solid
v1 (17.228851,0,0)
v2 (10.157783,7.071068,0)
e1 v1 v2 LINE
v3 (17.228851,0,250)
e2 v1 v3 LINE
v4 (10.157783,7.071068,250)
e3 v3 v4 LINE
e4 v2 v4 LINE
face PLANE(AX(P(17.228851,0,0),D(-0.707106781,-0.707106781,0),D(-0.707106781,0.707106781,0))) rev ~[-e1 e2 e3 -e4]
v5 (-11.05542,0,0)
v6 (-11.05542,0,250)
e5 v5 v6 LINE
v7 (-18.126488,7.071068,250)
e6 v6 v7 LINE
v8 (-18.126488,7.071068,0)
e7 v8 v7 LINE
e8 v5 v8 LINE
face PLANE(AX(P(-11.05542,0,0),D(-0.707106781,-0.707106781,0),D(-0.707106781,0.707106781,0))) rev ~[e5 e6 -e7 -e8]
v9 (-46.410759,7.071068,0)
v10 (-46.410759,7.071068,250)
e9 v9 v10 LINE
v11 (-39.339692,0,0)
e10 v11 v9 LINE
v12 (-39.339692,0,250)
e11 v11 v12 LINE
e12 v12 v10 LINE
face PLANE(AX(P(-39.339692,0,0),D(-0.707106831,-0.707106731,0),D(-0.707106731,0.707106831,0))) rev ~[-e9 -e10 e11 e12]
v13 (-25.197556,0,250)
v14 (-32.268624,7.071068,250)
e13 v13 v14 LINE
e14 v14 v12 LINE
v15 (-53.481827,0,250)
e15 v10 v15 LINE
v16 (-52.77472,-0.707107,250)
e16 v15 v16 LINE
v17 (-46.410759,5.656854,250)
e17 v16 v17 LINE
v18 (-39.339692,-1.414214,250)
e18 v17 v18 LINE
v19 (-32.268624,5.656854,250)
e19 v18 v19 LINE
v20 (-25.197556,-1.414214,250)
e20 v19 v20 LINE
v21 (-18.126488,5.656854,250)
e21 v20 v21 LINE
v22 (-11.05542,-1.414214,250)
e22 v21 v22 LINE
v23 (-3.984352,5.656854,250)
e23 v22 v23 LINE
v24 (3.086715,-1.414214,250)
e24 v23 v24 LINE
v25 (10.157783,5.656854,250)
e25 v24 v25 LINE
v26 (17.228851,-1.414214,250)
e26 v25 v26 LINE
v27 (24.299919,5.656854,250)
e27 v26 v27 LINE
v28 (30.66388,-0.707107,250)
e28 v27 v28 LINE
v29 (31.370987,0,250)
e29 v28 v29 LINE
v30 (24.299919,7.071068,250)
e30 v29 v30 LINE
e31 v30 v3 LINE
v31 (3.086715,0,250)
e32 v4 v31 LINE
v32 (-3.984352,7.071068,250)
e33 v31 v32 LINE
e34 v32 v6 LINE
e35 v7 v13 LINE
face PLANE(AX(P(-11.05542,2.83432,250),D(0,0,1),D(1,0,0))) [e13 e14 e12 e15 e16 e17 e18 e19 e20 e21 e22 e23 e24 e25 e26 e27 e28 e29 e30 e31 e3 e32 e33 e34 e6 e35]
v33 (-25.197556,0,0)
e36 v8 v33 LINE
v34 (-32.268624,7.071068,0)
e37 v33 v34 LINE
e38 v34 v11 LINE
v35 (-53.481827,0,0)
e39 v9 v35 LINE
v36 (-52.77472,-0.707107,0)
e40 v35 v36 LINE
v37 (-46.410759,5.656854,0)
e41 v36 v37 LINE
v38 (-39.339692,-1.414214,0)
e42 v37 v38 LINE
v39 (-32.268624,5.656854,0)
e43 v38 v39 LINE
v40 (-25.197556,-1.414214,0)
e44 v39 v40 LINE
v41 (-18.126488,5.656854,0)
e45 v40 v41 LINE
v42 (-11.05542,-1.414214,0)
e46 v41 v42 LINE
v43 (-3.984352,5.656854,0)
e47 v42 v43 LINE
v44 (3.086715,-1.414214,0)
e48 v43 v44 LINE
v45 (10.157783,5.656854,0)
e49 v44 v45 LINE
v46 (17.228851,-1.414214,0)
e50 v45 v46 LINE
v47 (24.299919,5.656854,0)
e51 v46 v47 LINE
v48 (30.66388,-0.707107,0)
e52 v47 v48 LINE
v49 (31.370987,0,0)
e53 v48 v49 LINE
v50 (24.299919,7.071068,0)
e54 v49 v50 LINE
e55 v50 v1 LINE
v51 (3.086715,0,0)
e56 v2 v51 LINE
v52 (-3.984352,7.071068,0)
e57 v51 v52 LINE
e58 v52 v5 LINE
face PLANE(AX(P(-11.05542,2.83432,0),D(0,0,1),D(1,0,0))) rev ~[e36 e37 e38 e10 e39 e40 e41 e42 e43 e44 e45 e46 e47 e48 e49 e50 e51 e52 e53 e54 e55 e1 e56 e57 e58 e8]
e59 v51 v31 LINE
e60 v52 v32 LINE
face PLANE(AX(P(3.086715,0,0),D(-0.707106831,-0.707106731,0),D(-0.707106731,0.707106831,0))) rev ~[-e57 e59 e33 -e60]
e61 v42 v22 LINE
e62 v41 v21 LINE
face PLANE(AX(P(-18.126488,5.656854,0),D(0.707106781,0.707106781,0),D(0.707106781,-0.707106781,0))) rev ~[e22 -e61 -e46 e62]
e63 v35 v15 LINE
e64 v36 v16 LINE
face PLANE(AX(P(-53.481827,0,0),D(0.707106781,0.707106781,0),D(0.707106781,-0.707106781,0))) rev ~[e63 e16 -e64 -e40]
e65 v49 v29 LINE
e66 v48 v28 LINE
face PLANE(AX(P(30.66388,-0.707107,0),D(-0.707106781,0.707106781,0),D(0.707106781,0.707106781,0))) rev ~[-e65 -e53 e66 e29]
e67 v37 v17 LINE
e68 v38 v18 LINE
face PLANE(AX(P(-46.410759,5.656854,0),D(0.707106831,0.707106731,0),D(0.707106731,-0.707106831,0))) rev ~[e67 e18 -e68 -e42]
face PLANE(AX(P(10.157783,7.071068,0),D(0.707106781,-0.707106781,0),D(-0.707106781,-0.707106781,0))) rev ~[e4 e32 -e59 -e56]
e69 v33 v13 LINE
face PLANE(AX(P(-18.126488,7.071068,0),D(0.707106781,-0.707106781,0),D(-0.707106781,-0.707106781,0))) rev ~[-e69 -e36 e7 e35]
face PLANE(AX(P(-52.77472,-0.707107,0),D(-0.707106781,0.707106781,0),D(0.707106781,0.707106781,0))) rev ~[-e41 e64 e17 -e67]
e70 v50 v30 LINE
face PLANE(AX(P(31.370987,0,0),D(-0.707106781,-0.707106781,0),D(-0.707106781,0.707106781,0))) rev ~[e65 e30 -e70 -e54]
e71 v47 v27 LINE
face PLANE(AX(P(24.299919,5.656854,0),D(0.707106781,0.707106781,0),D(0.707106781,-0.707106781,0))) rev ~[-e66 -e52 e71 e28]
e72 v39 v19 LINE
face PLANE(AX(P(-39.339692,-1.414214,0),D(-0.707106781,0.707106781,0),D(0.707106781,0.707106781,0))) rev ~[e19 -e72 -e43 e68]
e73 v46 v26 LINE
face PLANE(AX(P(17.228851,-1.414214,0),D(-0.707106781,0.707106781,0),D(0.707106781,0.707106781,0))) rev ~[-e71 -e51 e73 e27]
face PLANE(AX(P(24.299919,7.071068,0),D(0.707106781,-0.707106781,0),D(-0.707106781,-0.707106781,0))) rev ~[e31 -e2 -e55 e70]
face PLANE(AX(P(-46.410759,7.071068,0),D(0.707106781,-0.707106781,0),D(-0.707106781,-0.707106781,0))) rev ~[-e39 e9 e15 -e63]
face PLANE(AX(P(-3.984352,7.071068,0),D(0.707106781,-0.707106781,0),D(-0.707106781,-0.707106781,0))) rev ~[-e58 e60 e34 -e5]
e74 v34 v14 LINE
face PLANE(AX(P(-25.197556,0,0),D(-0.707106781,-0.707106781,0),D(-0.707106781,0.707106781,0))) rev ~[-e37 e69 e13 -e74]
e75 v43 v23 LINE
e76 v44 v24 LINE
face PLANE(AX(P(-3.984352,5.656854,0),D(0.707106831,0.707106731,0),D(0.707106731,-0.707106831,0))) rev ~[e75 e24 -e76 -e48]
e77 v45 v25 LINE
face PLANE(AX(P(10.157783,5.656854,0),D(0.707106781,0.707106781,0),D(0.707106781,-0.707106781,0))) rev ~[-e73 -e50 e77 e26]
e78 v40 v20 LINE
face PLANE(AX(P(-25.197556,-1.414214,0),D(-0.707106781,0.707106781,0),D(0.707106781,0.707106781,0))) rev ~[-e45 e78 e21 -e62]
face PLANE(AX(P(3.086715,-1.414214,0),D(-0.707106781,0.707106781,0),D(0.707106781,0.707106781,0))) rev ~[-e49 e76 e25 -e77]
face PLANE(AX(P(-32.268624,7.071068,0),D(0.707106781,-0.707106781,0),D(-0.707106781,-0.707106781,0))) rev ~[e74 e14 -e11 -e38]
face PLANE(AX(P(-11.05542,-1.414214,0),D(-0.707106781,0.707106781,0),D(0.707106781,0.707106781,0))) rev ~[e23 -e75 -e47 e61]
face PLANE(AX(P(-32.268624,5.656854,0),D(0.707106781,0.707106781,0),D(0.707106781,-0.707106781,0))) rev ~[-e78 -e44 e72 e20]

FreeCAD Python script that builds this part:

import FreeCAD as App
import Part
import Sketcher
from FreeCAD import Vector

doc = App.newDocument("Part")
body = doc.addObject("PartDesign::Body", "Body")

sketch1 = doc.addObject("Sketcher::SketchObject", "Sketch")
body.addObject(sketch1)
sketch1.AttachmentSupport = (doc.XY_Plane, [""])
sketch1.MapMode = "FlatFace"
sketch1.addGeometry(Part.LineSegment(Vector(-46.4, 7.1, 0), Vector(-53.5, 0, 0)), False)
sketch1.addGeometry(Part.LineSegment(Vector(-53.5, 0, 0), Vector(-52.8, -0.7, 0)), False)
sketch1.addGeometry(Part.LineSegment(Vector(-52.8, -0.7, 0), Vector(-46.4, 5.7, 0)), False)
sketch1.addGeometry(Part.LineSegment(Vector(-46.4, 5.7, 0), Vector(-39.3, -1.4, 0)), False)
sketch1.addGeometry(Part.LineSegment(Vector(-39.3, -1.4, 0), Vector(-32.3, 5.7, 0)), False)
sketch1.addGeometry(Part.LineSegment(Vector(-32.3, 5.7, 0), Vector(-25.2, -1.4, 0)), False)
sketch1.addGeometry(Part.LineSegment(Vector(-25.2, -1.4, 0), Vector(-18.1, 5.7, 0)), False)
sketch1.addGeometry(Part.LineSegment(Vector(-18.1, 5.7, 0), Vector(-11.1, -1.4, 0)), False)
sketch1.addGeometry(Part.LineSegment(Vector(-11.1, -1.4, 0), Vector(-4, 5.7, 0)), False)
sketch1.addGeometry(Part.LineSegment(Vector(-4, 5.7, 0), Vector(3.1, -1.4, 0)), False)
sketch1.addGeometry(Part.LineSegment(Vector(3.1, -1.4, 0), Vector(10.2, 5.7, 0)), False)
sketch1.addGeometry(Part.LineSegment(Vector(10.2, 5.7, 0), Vector(17.2, -1.4, 0)), False)
sketch1.addGeometry(Part.LineSegment(Vector(17.2, -1.4, 0), Vector(24.3, 5.7, 0)), False)
sketch1.addGeometry(Part.LineSegment(Vector(24.3, 5.7, 0), Vector(30.7, -0.7, 0)), False)
sketch1.addGeometry(Part.LineSegment(Vector(30.7, -0.7, 0), Vector(31.4, 0, 0)), False)
sketch1.addGeometry(Part.LineSegment(Vector(31.4, 0, 0), Vector(24.3, 7.1, 0)), False)
sketch1.addGeometry(Part.LineSegment(Vector(24.3, 7.1, 0), Vector(17.2, 0, 0)), False)
sketch1.addGeometry(Part.LineSegment(Vector(17.2, 0, 0), Vector(10.2, 7.1, 0)), False)
sketch1.addGeometry(Part.LineSegment(Vector(10.2, 7.1, 0), Vector(3.1, 0, 0)), False)
sketch1.addGeometry(Part.LineSegment(Vector(3.1, 0, 0), Vector(-4, 7.1, 0)), False)
sketch1.addGeometry(Part.LineSegment(Vector(-4, 7.1, 0), Vector(-11.1, 0, 0)), False)
sketch1.addGeometry(Part.LineSegment(Vector(-11.1, 0, 0), Vector(-18.1, 7.1, 0)), False)
sketch1.addGeometry(Part.LineSegment(Vector(-18.1, 7.1, 0), Vector(-25.2, 0, 0)), False)
sketch1.addGeometry(Part.LineSegment(Vector(-25.2, 0, 0), Vector(-32.3, 7.1, 0)), False)
sketch1.addGeometry(Part.LineSegment(Vector(-32.3, 7.1, 0), Vector(-39.3, 0, 0)), False)
sketch1.addGeometry(Part.LineSegment(Vector(-39.3, 0, 0), Vector(-46.4, 7.1, 0)), False)
sketch1.addConstraint(Sketcher.Constraint("Coincident", 0, 2, 1, 1))
sketch1.addConstraint(Sketcher.Constraint("Coincident", 1, 2, 2, 1))
sketch1.addConstraint(Sketcher.Constraint("Coincident", 2, 2, 3, 1))
sketch1.addConstraint(Sketcher.Constraint("Coincident", 3, 2, 4, 1))
sketch1.addConstraint(Sketcher.Constraint("Coincident", 4, 2, 5, 1))
sketch1.addConstraint(Sketcher.Constraint("Coincident", 5, 2, 6, 1))
sketch1.addConstraint(Sketcher.Constraint("Coincident", 6, 2, 7, 1))
sketch1.addConstraint(Sketcher.Constraint("Coincident", 7, 2, 8, 1))
sketch1.addConstraint(Sketcher.Constraint("Coincident", 8, 2, 9, 1))
sketch1.addConstraint(Sketcher.Constraint("Coincident", 9, 2, 10, 1))
sketch1.addConstraint(Sketcher.Constraint("Coincident", 10, 2, 11, 1))
sketch1.addConstraint(Sketcher.Constraint("Coincident", 11, 2, 12, 1))
sketch1.addConstraint(Sketcher.Constraint("Coincident", 12, 2, 13, 1))
sketch1.addConstraint(Sketcher.Constraint("Coincident", 13, 2, 14, 1))
sketch1.addConstraint(Sketcher.Constraint("Coincident", 14, 2, 15, 1))
sketch1.addConstraint(Sketcher.Constraint("Coincident", 15, 2, 16, 1))
sketch1.addConstraint(Sketcher.Constraint("Coincident", 16, 2, 17, 1))
sketch1.addConstraint(Sketcher.Constraint("Coincident", 17, 2, 18, 1))
sketch1.addConstraint(Sketcher.Constraint("Coincident", 18, 2, 19, 1))
sketch1.addConstraint(Sketcher.Constraint("Coincident", 19, 2, 20, 1))
sketch1.addConstraint(Sketcher.Constraint("Coincident", 20, 2, 21, 1))
sketch1.addConstraint(Sketcher.Constraint("Coincident", 21, 2, 22, 1))
sketch1.addConstraint(Sketcher.Constraint("Coincident", 22, 2, 23, 1))
sketch1.addConstraint(Sketcher.Constraint("Coincident", 23, 2, 24, 1))
sketch1.addConstraint(Sketcher.Constraint("Coincident", 24, 2, 25, 1))
sketch1.addConstraint(Sketcher.Constraint("Coincident", 25, 2, 0, 1))
sketch1.addConstraint(Sketcher.Constraint("PointOnObject", 0, 2, -1))
sketch1.addConstraint(Sketcher.Constraint("PointOnObject", 14, 2, -1))
sketch1.addConstraint(Sketcher.Constraint("PointOnObject", 16, 2, -1))
sketch1.addConstraint(Sketcher.Constraint("PointOnObject", 18, 2, -1))
sketch1.addConstraint(Sketcher.Constraint("PointOnObject", 20, 2, -1))
sketch1.addConstraint(Sketcher.Constraint("PointOnObject", 22, 2, -1))
sketch1.addConstraint(Sketcher.Constraint("PointOnObject", 24, 2, -1))
sketch1.addConstraint(Sketcher.Constraint("Perpendicular", 0, 1))
sketch1.addConstraint(Sketcher.Constraint("Perpendicular", 1, 2))
sketch1.addConstraint(Sketcher.Constraint("Perpendicular", 2, 3))
sketch1.addConstraint(Sketcher.Constraint("Perpendicular", 3, 4))
sketch1.addConstraint(Sketcher.Constraint("Perpendicular", 4, 5))
sketch1.addConstraint(Sketcher.Constraint("Perpendicular", 5, 6))
sketch1.addConstraint(Sketcher.Constraint("Perpendicular", 6, 7))
sketch1.addConstraint(Sketcher.Constraint("Perpendicular", 7, 8))
sketch1.addConstraint(Sketcher.Constraint("Perpendicular", 8, 9))
sketch1.addConstraint(Sketcher.Constraint("Perpendicular", 9, 10))
sketch1.addConstraint(Sketcher.Constraint("Perpendicular", 10, 11))
sketch1.addConstraint(Sketcher.Constraint("Perpendicular", 11, 12))
sketch1.addConstraint(Sketcher.Constraint("Perpendicular", 12, 13))
sketch1.addConstraint(Sketcher.Constraint("Perpendicular", 13, 14))
sketch1.addConstraint(Sketcher.Constraint("Perpendicular", 14, 15))
sketch1.addConstraint(Sketcher.Constraint("Perpendicular", 15, 16))
sketch1.addConstraint(Sketcher.Constraint("Perpendicular", 16, 17))
sketch1.addConstraint(Sketcher.Constraint("Perpendicular", 17, 18))
sketch1.addConstraint(Sketcher.Constraint("Perpendicular", 18, 19))
sketch1.addConstraint(Sketcher.Constraint("Perpendicular", 19, 20))
sketch1.addConstraint(Sketcher.Constraint("Perpendicular", 20, 21))
sketch1.addConstraint(Sketcher.Constraint("Perpendicular", 21, 22))
sketch1.addConstraint(Sketcher.Constraint("Perpendicular", 22, 23))
sketch1.addConstraint(Sketcher.Constraint("Perpendicular", 23, 24))
sketch1.addConstraint(Sketcher.Constraint("Perpendicular", 24, 25))
sketch1.addConstraint(Sketcher.Constraint("Horizontal", 2, 2, 4, 2))
sketch1.addConstraint(Sketcher.Constraint("Horizontal", 3, 2, 5, 2))
sketch1.addConstraint(Sketcher.Constraint("Horizontal", 4, 2, 6, 2))
sketch1.addConstraint(Sketcher.Constraint("Horizontal", 5, 2, 7, 2))
sketch1.addConstraint(Sketcher.Constraint("Horizontal", 6, 2, 8, 2))
sketch1.addConstraint(Sketcher.Constraint("Horizontal", 7, 2, 9, 2))
sketch1.addConstraint(Sketcher.Constraint("Horizontal", 8, 2, 10, 2))
sketch1.addConstraint(Sketcher.Constraint("Horizontal", 9, 2, 11, 2))
sketch1.addConstraint(Sketcher.Constraint("Horizontal", 10, 2, 12, 2))
sketch1.addConstraint(Sketcher.Constraint("Horizontal", 1, 2, 13, 2))
sketch1.addConstraint(Sketcher.Constraint("Horizontal", 15, 2, 17, 2))
sketch1.addConstraint(Sketcher.Constraint("Horizontal", 17, 2, 19, 2))
sketch1.addConstraint(Sketcher.Constraint("Horizontal", 19, 2, 21, 2))
sketch1.addConstraint(Sketcher.Constraint("Horizontal", 21, 2, 23, 2))
sketch1.addConstraint(Sketcher.Constraint("Horizontal", 23, 2, 25, 2))
sketch1.addConstraint(Sketcher.Constraint("Vertical", 12, 2, 15, 2))
sketch1.addConstraint(Sketcher.Constraint("Vertical", 11, 2, 16, 2))
sketch1.addConstraint(Sketcher.Constraint("Distance", 0, 10.0))
sketch1.addConstraint(Sketcher.Constraint("Distance", 1, 1.0))
sketch1.addConstraint(Sketcher.Constraint("DistanceX", 1, 2, -1, 1, 52.77472))
pad1 = doc.addObject("PartDesign::Pad", "Pad")
body.addObject(pad1)
pad1.Profile = sketch1
pad1.Length = 250

doc.recompute()
